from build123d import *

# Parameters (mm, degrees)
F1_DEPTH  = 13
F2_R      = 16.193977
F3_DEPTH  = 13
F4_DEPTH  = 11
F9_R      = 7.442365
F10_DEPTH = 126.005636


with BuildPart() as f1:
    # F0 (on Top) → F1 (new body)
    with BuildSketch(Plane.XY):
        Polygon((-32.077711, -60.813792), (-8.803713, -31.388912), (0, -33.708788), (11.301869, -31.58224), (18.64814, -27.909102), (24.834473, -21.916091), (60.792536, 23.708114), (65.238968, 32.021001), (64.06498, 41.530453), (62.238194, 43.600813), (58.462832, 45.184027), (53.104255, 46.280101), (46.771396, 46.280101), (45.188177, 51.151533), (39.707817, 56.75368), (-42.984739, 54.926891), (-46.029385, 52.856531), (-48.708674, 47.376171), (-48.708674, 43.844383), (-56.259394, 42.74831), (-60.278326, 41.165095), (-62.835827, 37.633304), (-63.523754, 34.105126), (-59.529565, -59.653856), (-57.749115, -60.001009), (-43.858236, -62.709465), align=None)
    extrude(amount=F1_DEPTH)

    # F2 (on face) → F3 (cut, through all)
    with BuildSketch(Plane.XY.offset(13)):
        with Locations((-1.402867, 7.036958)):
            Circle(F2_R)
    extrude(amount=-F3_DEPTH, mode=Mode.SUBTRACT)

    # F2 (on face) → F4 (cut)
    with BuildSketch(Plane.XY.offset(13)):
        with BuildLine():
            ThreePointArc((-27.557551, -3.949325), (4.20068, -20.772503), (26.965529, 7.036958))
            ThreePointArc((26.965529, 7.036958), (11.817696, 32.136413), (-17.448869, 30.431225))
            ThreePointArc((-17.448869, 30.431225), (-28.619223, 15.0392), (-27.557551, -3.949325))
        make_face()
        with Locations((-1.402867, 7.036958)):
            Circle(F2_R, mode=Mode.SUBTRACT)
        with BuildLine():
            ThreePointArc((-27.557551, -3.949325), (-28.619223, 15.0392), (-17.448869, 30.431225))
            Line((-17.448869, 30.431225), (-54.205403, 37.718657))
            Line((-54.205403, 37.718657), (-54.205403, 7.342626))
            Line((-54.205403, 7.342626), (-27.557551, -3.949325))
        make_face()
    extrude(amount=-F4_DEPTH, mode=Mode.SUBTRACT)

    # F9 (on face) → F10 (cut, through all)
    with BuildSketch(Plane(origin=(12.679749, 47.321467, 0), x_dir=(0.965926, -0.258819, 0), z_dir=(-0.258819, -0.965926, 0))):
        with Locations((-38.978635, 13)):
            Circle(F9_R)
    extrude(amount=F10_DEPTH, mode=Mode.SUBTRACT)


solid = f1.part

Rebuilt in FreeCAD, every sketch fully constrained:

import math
import FreeCAD as App
import Part
import Sketcher
from FreeCAD import Vector


def add_polygon(sketch, points):
    """Adds a closed chain of lines whose ends are joined by coincident constraints."""
    first, n = sketch.GeometryCount, len(points)
    for a, b in zip(points, points[1:] + points[:1]):
        sketch.addGeometry(Part.LineSegment(App.Vector(*a, 0), App.Vector(*b, 0)), False)
    for i in range(n):
        sketch.addConstraint(Sketcher.Constraint("Coincident", first + i, 2, first + (i + 1) % n, 1))

doc = App.newDocument("Part")
body = doc.addObject("PartDesign::Body", "Body")

# Sketch on XY plane
sketch1 = doc.addObject("Sketcher::SketchObject", "Sketch")
body.addObject(sketch1)
sketch1.AttachmentSupport = (doc.XY_Plane, [""])
sketch1.MapMode = "FlatFace"
add_polygon(sketch1, [(-32.077711, -60.813792), (-8.803713, -31.388912), (0, -33.708788), (11.301869, -31.58224), (18.64814, -27.909102), (24.834473, -21.916091), (60.792536, 23.708114), (65.238968, 32.021001), (64.06498, 41.530453), (62.238194, 43.600813), (58.462832, 45.184027), (53.104255, 46.280101), (46.771396, 46.280101), (45.188177, 51.151533), (39.707817, 56.75368), (-42.984739, 54.926891), (-46.029385, 52.856531), (-48.708674, 47.376171), (-48.708674, 43.844383), (-56.259394, 42.74831), (-60.278326, 41.165095), (-62.835827, 37.633304), (-63.523754, 34.105126), (-59.529565, -59.653856), (-57.749115, -60.001009), (-43.858236, -62.709465)])  # lines 0-25
sketch1.addConstraint([
    Sketcher.Constraint("Horizontal", 11),
    Sketcher.Constraint("Vertical", 17),
    Sketcher.Constraint("PointOnObject", 1, 2, -2),
    Sketcher.Constraint("DistanceY", -1, 1, 6, 2, 32.021001),
    Sketcher.Constraint("DistanceX", 11, 2, 11, 1, 6.332859),
    Sketcher.Constraint("DistanceY", -1, 1, 10, 2, 46.280101),
    Sketcher.Constraint("DistanceY", 1, 2, 5, 2, 57.416902),
    Sketcher.Constraint("DistanceX", 2, 2, 6, 2, 53.937099),
    Sketcher.Constraint("DistanceY", 5, 2, 8, 2, 19.892699),
    Sketcher.Constraint("DistanceX", 15, 2, 13, 2, 85.737202),
    Sketcher.Constraint("DistanceX", 20, 2, 19, 2, 2.557501),
    Sketcher.Constraint("Distance", 1, 9.10424),
    Sketcher.Constraint("Distance", 3, 8.213382),
    Sketcher.Constraint("Distance", 4, 8.613182),
    Sketcher.Constraint("Distance", 5, 58.09088),
    Sketcher.Constraint("Distance", 9, 4.093889),
    Sketcher.Constraint("Distance", 12, 5.122249),
    Sketcher.Constraint("Distance", 13, 7.836989),
    Sketcher.Constraint("Distance", 14, 82.712732),
    Sketcher.Constraint("Distance", 16, 6.100241),
    Sketcher.Constraint("Distance", 18, 7.629859),
    Sketcher.Constraint("Distance", 21, 3.594619),
    Sketcher.Constraint("Distance", 22, 93.844021),
    Sketcher.Constraint("Distance", 23, 1.813978),
    Sketcher.Constraint("DistanceY", 17, 2, 17, 1, 3.531788),
    Sketcher.Constraint("DistanceX", -1, 1, 2, 2, 11.301869),
    Sketcher.Constraint("DistanceY", 2, 2, -1, 1, 31.58224),
    Sketcher.Constraint("DistanceX", -1, 1, 3, 2, 18.64814),
    Sketcher.Constraint("DistanceY", 4, 2, -1, 1, 21.916091),
    Sketcher.Constraint("DistanceX", -1, 1, 7, 2, 64.06498),
    Sketcher.Constraint("DistanceY", -1, 1, 13, 2, 56.75368),
    Sketcher.Constraint("DistanceX", 14, 2, -1, 1, 42.984739),
    Sketcher.Constraint("DistanceY", -1, 1, 14, 2, 54.926891),
    Sketcher.Constraint("DistanceY", -1, 1, 15, 2, 52.856531),
    Sketcher.Constraint("DistanceY", -1, 1, 16, 2, 47.376171),
    Sketcher.Constraint("DistanceY", -1, 1, 18, 2, 42.74831),
    Sketcher.Constraint("DistanceY", 23, 2, -1, 1, 60.001009),
    Sketcher.Constraint("DistanceX", 25, 2, -1, 1, 32.077711),
    Sketcher.Constraint("DistanceX", 0, 2, 2, 2, 20.105582),
    Sketcher.Constraint("DistanceY", 0, 2, 3, 2, 3.47981),
    Sketcher.Constraint("DistanceY", 5, 2, 7, 2, 17.822339),
    Sketcher.Constraint("DistanceX", 5, 2, 8, 2, 1.445658),
    Sketcher.Constraint("DistanceX", 9, 2, 7, 2, 5.602148),
    Sketcher.Constraint("DistanceX", 10, 2, 8, 2, 9.133939),
    Sketcher.Constraint("DistanceX", 19, 2, 18, 2, 4.018932),
    Sketcher.Constraint("DistanceY", 20, 2, 19, 2, 3.531791),
    Sketcher.Constraint("DistanceY", 20, 2, 17, 2, 6.211079),
    Sketcher.Constraint("DistanceY", 21, 2, 20, 2, 3.528178),
    Sketcher.Constraint("DistanceX", 22, 2, 0, 2, 50.725852),
    Sketcher.Constraint("DistanceX", 23, 2, 24, 2, 13.890879),
    Sketcher.Constraint("DistanceY", 24, 2, 22, 2, 3.055609),
    Sketcher.Constraint("DistanceY", 25, 2, 0, 2, 29.42488),
])
pad1 = doc.addObject("PartDesign::Pad", "Pad")
body.addObject(pad1)
pad1.Profile = sketch1
pad1.Length = 13

# Sketch on XY plane
sketch2 = doc.addObject("Sketcher::SketchObject", "Sketch001")
body.addObject(sketch2)
sketch2.AttachmentSupport = (doc.XY_Plane, [""])
sketch2.MapMode = "FlatFace"
sketch2.AttachmentOffset = App.Placement(Vector(0, 0, 13), App.Rotation())
sketch2.addGeometry(Part.Circle(Vector(-1, 7, 0), Vector(0, 0, 1), 16), False)
sketch2.addConstraint([
    Sketcher.Constraint("Diameter", 0, 32.387954),
    Sketcher.Constraint("DistanceY", -1, 1, 0, 3, 7.036958),
    Sketcher.Constraint("DistanceX", 0, 3, -1, 1, 1.402867),
])
pocket1 = doc.addObject("PartDesign::Pocket", "Pocket")
body.addObject(pocket1)
pocket1.Profile = sketch2
pocket1.Type = "ThroughAll"

# Sketch on XY plane
sketch3 = doc.addObject("Sketcher::SketchObject", "Sketch002")
body.addObject(sketch3)
sketch3.AttachmentSupport = (doc.XY_Plane, [""])
sketch3.MapMode = "FlatFace"
sketch3.AttachmentOffset = App.Placement(Vector(0, 0, 13), App.Rotation())
sketch3.addGeometry([
    Part.ArcOfCircle(Part.Circle(Vector(-1, 7, 0), Vector(0, 0, 1), 28), math.radians(-157), math.radians(0)),  # 0
    Part.ArcOfCircle(Part.Circle(Vector(-1, 7, 0), Vector(0, 0, 1), 28), math.radians(0), math.radians(124)),  # 1
    Part.LineSegment(Vector(-17, 30, 0), Vector(-54, 38, 0)),  # 2
    Part.LineSegment(Vector(-54, 38, 0), Vector(-54, 7, 0)),  # 3
    Part.LineSegment(Vector(-54, 7, 0), Vector(-28, -4, 0)),  # 4
    Part.Circle(Vector(-1, 7, 0), Vector(0, 0, 1), 16),  # 5
], False)
sketch3.addConstraint([
    Sketcher.Constraint("Tangent", 0, 2, 1, 1),
    Sketcher.Constraint("Coincident", 1, 2, 2, 1),
    Sketcher.Constraint("Coincident", 2, 2, 3, 1),
    Sketcher.Constraint("Coincident", 3, 2, 4, 1),
    Sketcher.Constraint("Coincident", 4, 2, 0, 1),
    Sketcher.Constraint("Vertical", 3),
    Sketcher.Constraint("Coincident", 5, 3, 0, 3),
    Sketcher.Constraint("Equal", 0, 1),
    Sketcher.Constraint("Horizontal", 5, 3, 0, 2),
    Sketcher.Constraint("Diameter", 5, 32.387954),
    Sketcher.Constraint("Radius", 0, 28.368396),
    Sketcher.Constraint("DistanceX", 1, 2, 0, 3, 16.046002),
    Sketcher.Constraint("Distance", 4, 28.941599),
    Sketcher.Constraint("DistanceY", 3, 2, 3, 1, 30.376031),
    Sketcher.Constraint("DistanceY", 0, 3, 2, 2, 30.681698),
    Sketcher.Constraint("DistanceY", -1, 1, 0, 3, 7.036959),
    Sketcher.Constraint("DistanceX", -1, 1, 0, 2, 26.965529),
    Sketcher.Constraint("DistanceX", 4, 2, -1, 1, 27.557551),
])
pocket2 = doc.addObject("PartDesign::Pocket", "Pocket001")
body.addObject(pocket2)
pocket2.Profile = sketch3
pocket2.Length = 11

# Sketch on an angled plane
sketch4 = doc.addObject("Sketcher::SketchObject", "Sketch003")
body.addObject(sketch4)
sketch4.Placement = App.Placement(Vector(12.679749, 47.321467, 0), App.Rotation(Vector(0.965925849, -0.25881896, 0), Vector(0, 0, 1), Vector(-0.25881896, -0.965925849, 0), "ZXY"))
sketch4.addGeometry(Part.Circle(Vector(-39, 13, 0), Vector(0, 0, 1), 7), False)
sketch4.addConstraint([
    Sketcher.Constraint("DistanceY", -1, 1, 0, 3, 13.0),
    Sketcher.Constraint("Diameter", 0, 14.88473),
    Sketcher.Constraint("DistanceX", 0, 3, -1, 1, 38.978635),
])
pocket3 = doc.addObject("PartDesign::Pocket", "Pocket002")
body.addObject(pocket3)
pocket3.Profile = sketch4
pocket3.Type = "ThroughAll"
pocket3.Reversed = True

doc.recompute()
